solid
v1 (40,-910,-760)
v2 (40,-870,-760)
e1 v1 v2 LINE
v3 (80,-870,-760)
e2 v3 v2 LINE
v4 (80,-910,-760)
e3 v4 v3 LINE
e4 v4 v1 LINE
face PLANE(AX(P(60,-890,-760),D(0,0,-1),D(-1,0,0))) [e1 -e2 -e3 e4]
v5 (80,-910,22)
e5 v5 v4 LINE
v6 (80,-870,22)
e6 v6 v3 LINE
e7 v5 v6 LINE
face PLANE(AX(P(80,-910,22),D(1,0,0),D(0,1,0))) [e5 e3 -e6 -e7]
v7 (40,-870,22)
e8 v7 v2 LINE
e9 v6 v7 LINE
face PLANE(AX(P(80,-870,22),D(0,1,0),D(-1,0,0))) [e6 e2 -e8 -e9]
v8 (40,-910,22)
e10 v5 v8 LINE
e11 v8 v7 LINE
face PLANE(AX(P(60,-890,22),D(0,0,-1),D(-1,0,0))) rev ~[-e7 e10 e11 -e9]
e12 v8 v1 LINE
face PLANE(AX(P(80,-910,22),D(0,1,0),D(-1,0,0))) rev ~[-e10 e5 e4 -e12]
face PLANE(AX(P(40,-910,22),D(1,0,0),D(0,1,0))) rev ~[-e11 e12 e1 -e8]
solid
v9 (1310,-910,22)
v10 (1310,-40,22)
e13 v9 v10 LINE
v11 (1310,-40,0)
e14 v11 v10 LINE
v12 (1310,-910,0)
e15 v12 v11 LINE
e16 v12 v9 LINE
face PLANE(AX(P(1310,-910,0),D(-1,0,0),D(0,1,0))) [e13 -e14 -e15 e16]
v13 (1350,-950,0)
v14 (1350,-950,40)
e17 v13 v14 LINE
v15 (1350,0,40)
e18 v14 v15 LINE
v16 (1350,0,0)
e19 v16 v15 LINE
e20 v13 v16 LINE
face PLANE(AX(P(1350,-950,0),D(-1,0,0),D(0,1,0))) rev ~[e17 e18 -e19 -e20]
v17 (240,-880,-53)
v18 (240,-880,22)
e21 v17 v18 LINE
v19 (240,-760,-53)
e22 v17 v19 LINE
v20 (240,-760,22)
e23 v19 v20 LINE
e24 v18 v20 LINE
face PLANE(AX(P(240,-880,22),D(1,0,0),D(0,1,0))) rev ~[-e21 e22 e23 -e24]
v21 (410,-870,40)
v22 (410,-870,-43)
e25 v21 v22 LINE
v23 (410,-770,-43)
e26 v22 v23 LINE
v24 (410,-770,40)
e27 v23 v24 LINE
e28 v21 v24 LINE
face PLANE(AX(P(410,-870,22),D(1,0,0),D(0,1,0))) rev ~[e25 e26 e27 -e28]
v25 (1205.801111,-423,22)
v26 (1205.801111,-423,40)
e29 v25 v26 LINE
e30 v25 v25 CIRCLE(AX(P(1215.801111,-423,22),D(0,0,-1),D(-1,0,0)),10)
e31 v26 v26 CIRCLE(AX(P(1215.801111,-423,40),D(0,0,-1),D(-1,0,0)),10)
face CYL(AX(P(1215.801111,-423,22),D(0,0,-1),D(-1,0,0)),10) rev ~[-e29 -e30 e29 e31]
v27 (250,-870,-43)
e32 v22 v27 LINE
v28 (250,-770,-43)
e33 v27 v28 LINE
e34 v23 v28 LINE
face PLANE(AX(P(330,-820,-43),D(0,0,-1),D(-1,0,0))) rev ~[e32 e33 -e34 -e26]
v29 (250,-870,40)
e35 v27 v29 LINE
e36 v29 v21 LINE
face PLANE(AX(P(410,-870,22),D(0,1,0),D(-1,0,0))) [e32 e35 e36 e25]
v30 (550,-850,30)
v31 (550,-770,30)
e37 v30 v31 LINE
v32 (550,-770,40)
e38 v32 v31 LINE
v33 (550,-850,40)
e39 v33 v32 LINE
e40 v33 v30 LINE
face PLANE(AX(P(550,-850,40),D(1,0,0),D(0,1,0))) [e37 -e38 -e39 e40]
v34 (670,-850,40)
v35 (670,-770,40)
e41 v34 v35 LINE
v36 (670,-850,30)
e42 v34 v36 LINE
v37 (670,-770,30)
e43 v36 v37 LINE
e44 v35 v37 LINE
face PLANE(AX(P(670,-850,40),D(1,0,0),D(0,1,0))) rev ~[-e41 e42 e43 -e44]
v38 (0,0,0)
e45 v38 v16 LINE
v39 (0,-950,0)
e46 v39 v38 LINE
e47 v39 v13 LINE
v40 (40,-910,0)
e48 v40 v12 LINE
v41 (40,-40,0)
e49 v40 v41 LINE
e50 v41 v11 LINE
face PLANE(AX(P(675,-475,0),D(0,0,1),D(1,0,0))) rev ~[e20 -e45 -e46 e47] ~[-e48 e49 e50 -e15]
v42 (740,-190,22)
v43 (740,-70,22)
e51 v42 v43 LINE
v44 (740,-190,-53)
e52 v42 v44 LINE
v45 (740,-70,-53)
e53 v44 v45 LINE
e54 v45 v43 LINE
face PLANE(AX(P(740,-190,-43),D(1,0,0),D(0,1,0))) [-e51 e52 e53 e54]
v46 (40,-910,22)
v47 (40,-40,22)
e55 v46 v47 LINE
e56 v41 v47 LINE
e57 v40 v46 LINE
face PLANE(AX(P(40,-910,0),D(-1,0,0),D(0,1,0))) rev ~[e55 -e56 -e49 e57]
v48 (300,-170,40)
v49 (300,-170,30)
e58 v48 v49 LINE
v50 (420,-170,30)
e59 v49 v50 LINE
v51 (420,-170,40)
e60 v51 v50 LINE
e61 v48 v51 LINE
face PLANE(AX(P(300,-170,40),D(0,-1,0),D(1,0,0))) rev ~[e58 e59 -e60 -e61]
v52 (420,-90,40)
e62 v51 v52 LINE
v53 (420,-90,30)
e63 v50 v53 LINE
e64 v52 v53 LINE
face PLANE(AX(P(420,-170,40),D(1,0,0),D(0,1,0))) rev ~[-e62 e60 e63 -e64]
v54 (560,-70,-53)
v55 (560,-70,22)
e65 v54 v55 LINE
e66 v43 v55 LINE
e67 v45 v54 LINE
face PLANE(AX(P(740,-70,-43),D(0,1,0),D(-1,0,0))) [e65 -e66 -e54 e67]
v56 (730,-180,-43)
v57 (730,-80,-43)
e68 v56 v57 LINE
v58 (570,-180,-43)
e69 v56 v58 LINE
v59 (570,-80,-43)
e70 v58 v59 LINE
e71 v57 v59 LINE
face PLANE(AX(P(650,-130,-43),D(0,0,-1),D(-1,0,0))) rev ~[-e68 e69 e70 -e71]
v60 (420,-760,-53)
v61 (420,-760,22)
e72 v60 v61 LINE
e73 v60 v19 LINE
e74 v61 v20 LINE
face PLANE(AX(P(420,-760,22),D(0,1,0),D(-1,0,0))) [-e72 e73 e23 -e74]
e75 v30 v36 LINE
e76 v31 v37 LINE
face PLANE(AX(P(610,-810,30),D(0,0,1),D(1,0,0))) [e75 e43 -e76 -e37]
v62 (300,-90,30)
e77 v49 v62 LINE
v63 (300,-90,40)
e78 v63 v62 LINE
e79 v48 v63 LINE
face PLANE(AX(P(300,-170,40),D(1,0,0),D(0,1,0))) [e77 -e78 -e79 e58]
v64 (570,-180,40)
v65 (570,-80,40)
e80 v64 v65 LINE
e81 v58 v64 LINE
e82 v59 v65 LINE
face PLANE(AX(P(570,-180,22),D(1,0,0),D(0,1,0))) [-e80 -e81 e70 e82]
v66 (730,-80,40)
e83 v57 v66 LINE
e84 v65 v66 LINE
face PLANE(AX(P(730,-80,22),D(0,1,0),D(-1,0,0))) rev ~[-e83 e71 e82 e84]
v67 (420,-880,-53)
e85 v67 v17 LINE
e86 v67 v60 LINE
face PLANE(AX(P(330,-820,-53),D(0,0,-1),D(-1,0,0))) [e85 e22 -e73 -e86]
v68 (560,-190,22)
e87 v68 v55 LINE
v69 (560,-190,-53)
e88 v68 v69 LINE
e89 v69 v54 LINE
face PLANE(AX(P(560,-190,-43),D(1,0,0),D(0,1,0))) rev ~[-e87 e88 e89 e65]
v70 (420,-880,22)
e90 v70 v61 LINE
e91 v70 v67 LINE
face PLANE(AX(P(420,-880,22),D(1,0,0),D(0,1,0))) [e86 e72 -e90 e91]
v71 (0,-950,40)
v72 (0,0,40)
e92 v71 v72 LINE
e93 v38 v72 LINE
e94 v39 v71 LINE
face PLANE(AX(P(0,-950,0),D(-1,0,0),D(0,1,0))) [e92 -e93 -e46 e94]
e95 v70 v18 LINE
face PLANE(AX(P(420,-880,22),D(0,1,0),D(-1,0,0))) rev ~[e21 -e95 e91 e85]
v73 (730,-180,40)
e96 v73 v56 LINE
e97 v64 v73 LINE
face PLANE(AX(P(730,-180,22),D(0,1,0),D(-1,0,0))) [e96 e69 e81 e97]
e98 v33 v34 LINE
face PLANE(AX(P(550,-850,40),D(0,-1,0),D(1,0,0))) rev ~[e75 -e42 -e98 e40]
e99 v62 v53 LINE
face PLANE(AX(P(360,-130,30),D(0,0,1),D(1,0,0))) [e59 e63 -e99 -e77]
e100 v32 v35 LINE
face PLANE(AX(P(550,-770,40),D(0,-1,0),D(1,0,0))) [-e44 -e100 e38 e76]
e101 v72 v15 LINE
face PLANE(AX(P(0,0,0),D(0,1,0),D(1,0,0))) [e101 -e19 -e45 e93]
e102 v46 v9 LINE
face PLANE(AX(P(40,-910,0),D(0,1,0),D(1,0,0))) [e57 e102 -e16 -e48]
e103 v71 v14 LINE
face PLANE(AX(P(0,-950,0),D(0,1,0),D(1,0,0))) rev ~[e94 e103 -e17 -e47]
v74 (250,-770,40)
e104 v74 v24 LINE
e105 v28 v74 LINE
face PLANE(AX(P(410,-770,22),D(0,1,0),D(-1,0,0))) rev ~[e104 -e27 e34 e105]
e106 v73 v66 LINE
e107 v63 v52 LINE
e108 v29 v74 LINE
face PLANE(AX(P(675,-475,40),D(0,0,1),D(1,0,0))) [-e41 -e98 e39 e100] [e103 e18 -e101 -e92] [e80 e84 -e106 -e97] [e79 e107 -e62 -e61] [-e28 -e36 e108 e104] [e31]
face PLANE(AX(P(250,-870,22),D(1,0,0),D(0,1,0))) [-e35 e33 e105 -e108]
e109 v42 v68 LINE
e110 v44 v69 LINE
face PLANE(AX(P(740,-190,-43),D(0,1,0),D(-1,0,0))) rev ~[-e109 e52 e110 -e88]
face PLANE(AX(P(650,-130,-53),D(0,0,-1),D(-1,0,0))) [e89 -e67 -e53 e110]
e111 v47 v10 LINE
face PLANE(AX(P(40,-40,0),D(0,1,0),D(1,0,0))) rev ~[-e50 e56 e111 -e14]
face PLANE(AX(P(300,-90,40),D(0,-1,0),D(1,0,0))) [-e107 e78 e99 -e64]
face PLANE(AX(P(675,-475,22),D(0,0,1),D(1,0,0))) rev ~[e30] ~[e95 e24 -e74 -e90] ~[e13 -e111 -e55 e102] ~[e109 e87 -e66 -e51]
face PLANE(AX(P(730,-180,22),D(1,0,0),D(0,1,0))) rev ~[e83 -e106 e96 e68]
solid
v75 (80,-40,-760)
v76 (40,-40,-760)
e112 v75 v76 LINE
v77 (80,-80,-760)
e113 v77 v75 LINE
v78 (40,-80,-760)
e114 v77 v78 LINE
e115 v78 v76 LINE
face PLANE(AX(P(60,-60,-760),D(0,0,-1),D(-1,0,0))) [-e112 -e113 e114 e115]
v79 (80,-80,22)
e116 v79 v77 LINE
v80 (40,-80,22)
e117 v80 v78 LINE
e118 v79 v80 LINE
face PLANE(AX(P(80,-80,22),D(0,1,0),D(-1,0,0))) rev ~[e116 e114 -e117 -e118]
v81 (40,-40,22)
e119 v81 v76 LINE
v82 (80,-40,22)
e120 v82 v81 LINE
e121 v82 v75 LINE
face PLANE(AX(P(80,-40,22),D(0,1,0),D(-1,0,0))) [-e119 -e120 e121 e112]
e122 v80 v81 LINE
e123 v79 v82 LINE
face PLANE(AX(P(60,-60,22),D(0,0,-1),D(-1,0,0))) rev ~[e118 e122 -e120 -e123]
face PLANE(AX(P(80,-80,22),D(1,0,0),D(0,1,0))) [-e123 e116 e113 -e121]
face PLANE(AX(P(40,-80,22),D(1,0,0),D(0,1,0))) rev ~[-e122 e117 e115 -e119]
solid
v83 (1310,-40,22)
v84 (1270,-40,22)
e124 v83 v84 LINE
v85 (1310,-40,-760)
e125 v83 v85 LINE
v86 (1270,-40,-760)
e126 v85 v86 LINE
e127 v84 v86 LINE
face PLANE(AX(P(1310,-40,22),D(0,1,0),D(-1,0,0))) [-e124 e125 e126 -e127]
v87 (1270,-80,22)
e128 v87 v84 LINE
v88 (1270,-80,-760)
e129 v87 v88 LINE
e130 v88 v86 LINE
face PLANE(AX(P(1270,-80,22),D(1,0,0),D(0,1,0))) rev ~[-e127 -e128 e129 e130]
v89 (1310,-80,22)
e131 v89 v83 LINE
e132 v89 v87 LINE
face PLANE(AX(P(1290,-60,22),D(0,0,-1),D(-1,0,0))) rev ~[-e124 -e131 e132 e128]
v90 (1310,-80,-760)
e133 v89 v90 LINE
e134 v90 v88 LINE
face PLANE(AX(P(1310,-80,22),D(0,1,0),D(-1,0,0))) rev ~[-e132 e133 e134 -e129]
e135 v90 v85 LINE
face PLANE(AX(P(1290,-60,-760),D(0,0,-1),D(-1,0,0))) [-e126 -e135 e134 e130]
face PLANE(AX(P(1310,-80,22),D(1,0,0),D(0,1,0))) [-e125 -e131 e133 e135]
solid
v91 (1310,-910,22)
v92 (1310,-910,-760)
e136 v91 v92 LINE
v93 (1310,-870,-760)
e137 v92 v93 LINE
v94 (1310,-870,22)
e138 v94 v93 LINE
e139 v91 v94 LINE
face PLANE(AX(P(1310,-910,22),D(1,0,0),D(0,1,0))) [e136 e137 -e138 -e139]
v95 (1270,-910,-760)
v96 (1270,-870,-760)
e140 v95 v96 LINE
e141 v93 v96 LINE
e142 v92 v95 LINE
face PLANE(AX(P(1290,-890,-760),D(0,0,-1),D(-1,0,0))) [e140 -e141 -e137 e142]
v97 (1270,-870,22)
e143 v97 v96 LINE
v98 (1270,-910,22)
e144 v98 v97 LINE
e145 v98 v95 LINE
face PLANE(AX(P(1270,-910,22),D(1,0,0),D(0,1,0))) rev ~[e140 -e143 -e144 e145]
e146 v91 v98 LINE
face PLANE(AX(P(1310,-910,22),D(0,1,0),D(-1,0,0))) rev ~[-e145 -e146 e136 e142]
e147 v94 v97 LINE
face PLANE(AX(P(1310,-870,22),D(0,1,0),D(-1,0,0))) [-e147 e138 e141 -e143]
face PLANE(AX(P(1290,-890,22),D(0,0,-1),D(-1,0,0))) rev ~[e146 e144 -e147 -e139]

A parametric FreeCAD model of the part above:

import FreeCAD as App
import Part
import Sketcher
from FreeCAD import Vector
Q = App.Units.Quantity


def add_polygon(sketch, points):
    """Adds a closed chain of lines whose ends are joined by coincident constraints."""
    first, n = sketch.GeometryCount, len(points)
    for a, b in zip(points, points[1:] + points[:1]):
        sketch.addGeometry(Part.LineSegment(App.Vector(*a, 0), App.Vector(*b, 0)), False)
    for i in range(n):
        sketch.addConstraint(Sketcher.Constraint("Coincident", first + i, 2, first + (i + 1) % n, 1))

doc = App.newDocument("Part")
body = doc.addObject("PartDesign::Body", "Body")

# Sketch on XY plane
sketch1 = doc.addObject("Sketcher::SketchObject", "Sketch")
body.addObject(sketch1)
sketch1.AttachmentSupport = (doc.XY_Plane, [""])
sketch1.MapMode = "FlatFace"
add_polygon(sketch1, [(0, 0), (0, -950), (1350, -950), (1350, 0)])  # lines 0-3
add_polygon(sketch1, [(1310, -910), (40, -910), (40, -40), (1310, -40)])  # lines 4-7
sketch1.addConstraint([
    Sketcher.Constraint("Vertical", 0),
    Sketcher.Constraint("Horizontal", 1),
    Sketcher.Constraint("Vertical", 2),
    Sketcher.Constraint("Horizontal", 3),
    Sketcher.Constraint("Horizontal", 4),
    Sketcher.Constraint("Vertical", 5),
    Sketcher.Constraint("Horizontal", 6),
    Sketcher.Constraint("Vertical", 7),
    Sketcher.Constraint("Coincident", 3, 2, -1, 1),
    Sketcher.Constraint("DistanceX", 1, 1, 1, 2, Q("1350 mm")),
    Sketcher.Constraint("DistanceX", 4, 2, 4, 1, Q("1270 mm")),
    Sketcher.Constraint("DistanceY", 0, 2, 0, 1, Q("950 mm")),
    Sketcher.Constraint("DistanceY", 5, 1, 5, 2, Q("870 mm")),
    Sketcher.Constraint("DistanceX", -1, 1, 4, 2, Q("40 mm")),
    Sketcher.Constraint("DistanceY", 4, 2, -1, 1, Q("910 mm")),
])
pad1 = doc.addObject("PartDesign::Pad", "Pad")
body.addObject(pad1)
pad1.Profile = sketch1
pad1.Length = 40
body2 = doc.addObject("PartDesign::Body", "Body001")

# Sketch on XY plane
sketch2 = doc.addObject("Sketcher::SketchObject", "Sketch001")
body2.addObject(sketch2)
sketch2.AttachmentSupport = (doc.getObject("XY_Plane001"), [""])
sketch2.MapMode = "FlatFace"
add_polygon(sketch2, [(1310, -40), (1310, -80), (1270, -80), (1270, -40)])  # lines 0-3
sketch2.addConstraint([
    Sketcher.Constraint("Vertical", 0),
    Sketcher.Constraint("Horizontal", 1),
    Sketcher.Constraint("Vertical", 2),
    Sketcher.Constraint("Horizontal", 3),
    Sketcher.Constraint("Equal", 3, 0),
    Sketcher.Constraint("DistanceX", 1, 2, 1, 1, Q("40 mm")),
    Sketcher.Constraint("DistanceX", -1, 1, 0, 2, Q("1310 mm")),
    Sketcher.Constraint("DistanceY", 0, 2, -1, 1, Q("80 mm")),
])
pad2 = doc.addObject("PartDesign::Pad", "Pad001")
body2.addObject(pad2)
pad2.Profile = sketch2
pad2.Type = "TwoLengths"
pad2.Length = 760
pad2.Length2 = 22
pad2.Reversed = True
body3 = doc.addObject("PartDesign::Body", "Body002")

# Sketch on XY plane
sketch3 = doc.addObject("Sketcher::SketchObject", "Sketch002")
body3.addObject(sketch3)
sketch3.AttachmentSupport = (doc.getObject("XY_Plane002"), [""])
sketch3.MapMode = "FlatFace"
add_polygon(sketch3, [(80, -40), (80, -80), (40, -80), (40, -40)])  # lines 0-3
sketch3.addConstraint([
    Sketcher.Constraint("Vertical", 0),
    Sketcher.Constraint("Horizontal", 1),
    Sketcher.Constraint("Vertical", 2),
    Sketcher.Constraint("Horizontal", 3),
    Sketcher.Constraint("Equal", 3, 0),
    Sketcher.Constraint("DistanceX", 1, 2, 1, 1, Q("40 mm")),
    Sketcher.Constraint("DistanceX", -1, 1, 0, 2, Q("80 mm")),
    Sketcher.Constraint("DistanceY", 0, 2, -1, 1, Q("80 mm")),
])
pad3 = doc.addObject("PartDesign::Pad", "Pad002")
body3.addObject(pad3)
pad3.Profile = sketch3
pad3.Type = "TwoLengths"
pad3.Length = 760
pad3.Length2 = 22
pad3.Reversed = True
body4 = doc.addObject("PartDesign::Body", "Body003")

# Sketch on XY plane
sketch4 = doc.addObject("Sketcher::SketchObject", "Sketch003")
body4.addObject(sketch4)
sketch4.AttachmentSupport = (doc.getObject("XY_Plane003"), [""])
sketch4.MapMode = "FlatFace"
add_polygon(sketch4, [(80, -870), (80, -910), (40, -910), (40, -870)])  # lines 0-3
sketch4.addConstraint([
    Sketcher.Constraint("Vertical", 0),
    Sketcher.Constraint("Horizontal", 1),
    Sketcher.Constraint("Vertical", 2),
    Sketcher.Constraint("Horizontal", 3),
    Sketcher.Constraint("Equal", 3, 0),
    Sketcher.Constraint("DistanceX", 1, 2, 1, 1, Q("40 mm")),
    Sketcher.Constraint("DistanceX", -1, 1, 0, 2, Q("80 mm")),
    Sketcher.Constraint("DistanceY", 0, 2, -1, 1, Q("910 mm")),
])
pad4 = doc.addObject("PartDesign::Pad", "Pad003")
body4.addObject(pad4)
pad4.Profile = sketch4
pad4.Type = "TwoLengths"
pad4.Length = 760
pad4.Length2 = 22
pad4.Reversed = True
body5 = doc.addObject("PartDesign::Body", "Body004")

# Sketch on XY plane
sketch5 = doc.addObject("Sketcher::SketchObject", "Sketch004")
body5.addObject(sketch5)
sketch5.AttachmentSupport = (doc.getObject("XY_Plane004"), [""])
sketch5.MapMode = "FlatFace"
add_polygon(sketch5, [(1310, -870), (1310, -910), (1270, -910), (1270, -870)])  # lines 0-3
sketch5.addConstraint([
    Sketcher.Constraint("Vertical", 0),
    Sketcher.Constraint("Horizontal", 1),
    Sketcher.Constraint("Vertical", 2),
    Sketcher.Constraint("Horizontal", 3),
    Sketcher.Constraint("Equal", 3, 0),
    Sketcher.Constraint("DistanceX", 1, 2, 1, 1, Q("40 mm")),
    Sketcher.Constraint("DistanceX", -1, 1, 0, 2, Q("1310 mm")),
    Sketcher.Constraint("DistanceY", 0, 2, -1, 1, Q("910 mm")),
])
pad5 = doc.addObject("PartDesign::Pad", "Pad004")
body5.addObject(pad5)
pad5.Profile = sketch5
pad5.Type = "TwoLengths"
pad5.Length = 760
pad5.Length2 = 22
pad5.Reversed = True
body6 = doc.addObject("PartDesign::Body", "Body005")

# Sketch on XY plane
sketch6 = doc.addObject("Sketcher::SketchObject", "Sketch005")
body6.addObject(sketch6)
sketch6.AttachmentSupport = (doc.getObject("XY_Plane005"), [""])
sketch6.MapMode = "FlatFace"
sketch6.AttachmentOffset = App.Placement(Vector(0, 0, 22), App.Rotation())
add_polygon(sketch6, [(40, -40), (40, -910), (1310, -910), (1310, -40)])  # lines 0-3
sketch6.addConstraint([
    Sketcher.Constraint("Vertical", 0),
    Sketcher.Constraint("Horizontal", 1),
    Sketcher.Constraint("Vertical", 2),
    Sketcher.Constraint("Horizontal", 3),
    Sketcher.Constraint("DistanceX", 1, 1, 1, 2, Q("1270 mm")),
    Sketcher.Constraint("DistanceY", 0, 2, 0, 1, Q("870 mm")),
    Sketcher.Constraint("DistanceX", -1, 1, 0, 2, Q("40 mm")),
    Sketcher.Constraint("DistanceY", 0, 2, -1, 1, Q("910 mm")),
])
pad6 = doc.addObject("PartDesign::Pad", "Pad005")
body6.addObject(pad6)
pad6.Profile = sketch6
pad6.Length = 18

# Sketch on XY plane
sketch7 = doc.addObject("Sketcher::SketchObject", "Sketch006")
body6.addObject(sketch7)
sketch7.AttachmentSupport = (doc.getObject("XY_Plane005"), [""])
sketch7.MapMode = "FlatFace"
sketch7.AttachmentOffset = App.Placement(Vector(0, 0, 40), App.Rotation())
add_polygon(sketch7, [(250, -770), (250, -870), (410, -870), (410, -770)])  # lines 0-3
add_polygon(sketch7, [(570, -80), (570, -180), (730, -180), (730, -80)])  # lines 4-7
sketch7.addConstraint([
    Sketcher.Constraint("Vertical", 0),
    Sketcher.Constraint("Horizontal", 1),
    Sketcher.Constraint("Vertical", 2),
    Sketcher.Constraint("Horizontal", 3),
    Sketcher.Constraint("Vertical", 4),
    Sketcher.Constraint("Horizontal", 5),
    Sketcher.Constraint("Vertical", 6),
    Sketcher.Constraint("Horizontal", 7),
    Sketcher.Constraint("Equal", 3, 5),
    Sketcher.Constraint("Equal", 2, 4),
    Sketcher.Constraint("DistanceX", 1, 1, 1, 2, Q("160 mm")),
    Sketcher.Constraint("DistanceY", 0, 2, 0, 1, Q("100 mm")),
    Sketcher.Constraint("DistanceX", -1, 1, 0, 2, Q("250 mm")),
    Sketcher.Constraint("DistanceY", 0, 2, -1, 1, Q("870 mm")),
    Sketcher.Constraint("DistanceX", -1, 1, 4, 2, Q("570 mm")),
    Sketcher.Constraint("DistanceY", 4, 2, -1, 1, Q("180 mm")),
])
pocket1 = doc.addObject("PartDesign::Pocket", "Pocket")
body6.addObject(pocket1)
pocket1.Profile = sketch7
pocket1.Type = "ThroughAll"
doc.recompute()

boolean = doc.addObject("PartDesign::Boolean", "Boolean")
body.addObject(boolean)
boolean.Type = "Fuse"
boolean.addObjects([body6])

# Sketch on XY plane
sketch8 = doc.addObject("Sketcher::SketchObject", "Sketch007")
body.addObject(sketch8)
sketch8.AttachmentSupport = (doc.XY_Plane, [""])
sketch8.MapMode = "FlatFace"
sketch8.AttachmentOffset = App.Placement(Vector(0, 0, 22), App.Rotation())
add_polygon(sketch8, [(420, -760), (420, -880), (240, -880), (240, -760)])  # lines 0-3
add_polygon(sketch8, [(250, -870), (410, -870), (410, -770), (250, -770)])  # lines 4-7
add_polygon(sketch8, [(740, -70), (740, -190), (560, -190), (560, -70)])  # lines 8-11
add_polygon(sketch8, [(570, -180), (730, -180), (730, -80), (570, -80)])  # lines 12-15
sketch8.addConstraint([
    Sketcher.Constraint("Vertical", 0),
    Sketcher.Constraint("Horizontal", 1),
    Sketcher.Constraint("Vertical", 2),
    Sketcher.Constraint("Horizontal", 3),
    Sketcher.Constraint("Horizontal", 4),
    Sketcher.Constraint("Vertical", 5),
    Sketcher.Constraint("Horizontal", 6),
    Sketcher.Constraint("Vertical", 7),
    Sketcher.Constraint("Vertical", 8),
    Sketcher.Constraint("Horizontal", 9),
    Sketcher.Constraint("Vertical", 10),
    Sketcher.Constraint("Horizontal", 11),
    Sketcher.Constraint("Horizontal", 12),
    Sketcher.Constraint("Vertical", 13),
    Sketcher.Constraint("Horizontal", 14),
    Sketcher.Constraint("Vertical", 15),
    Sketcher.Constraint("Equal", 3, 9),
    Sketcher.Constraint("Equal", 6, 12),
    Sketcher.Constraint("Equal", 2, 8),
    Sketcher.Constraint("Equal", 7, 13),
    Sketcher.Constraint("DistanceX", 1, 2, 1, 1, Q("180 mm")),
    Sketcher.Constraint("DistanceX", 4, 1, 4, 2, Q("160 mm")),
    Sketcher.Constraint("DistanceY", 0, 2, 0, 1, Q("120 mm")),
    Sketcher.Constraint("DistanceY", 5, 1, 5, 2, Q("100 mm")),
    Sketcher.Constraint("DistanceX", -1, 1, 0, 2, Q("420 mm")),
    Sketcher.Constraint("DistanceY", 0, 2, -1, 1, Q("880 mm")),
    Sketcher.Constraint("DistanceX", -1, 1, 4, 2, Q("410 mm")),
    Sketcher.Constraint("DistanceY", 4, 2, -1, 1, Q("870 mm")),
    Sketcher.Constraint("DistanceX", -1, 1, 8, 2, Q("740 mm")),
    Sketcher.Constraint("DistanceY", 8, 2, -1, 1, Q("190 mm")),
    Sketcher.Constraint("DistanceX", -1, 1, 12, 2, Q("730 mm")),
    Sketcher.Constraint("DistanceY", 12, 2, -1, 1, Q("180 mm")),
])
pad7 = doc.addObject("PartDesign::Pad", "Pad006")
body.addObject(pad7)
pad7.Profile = sketch8
pad7.Length = 65
pad7.Reversed = True

# Sketch on XY plane
sketch9 = doc.addObject("Sketcher::SketchObject", "Sketch008")
body.addObject(sketch9)
sketch9.AttachmentSupport = (doc.XY_Plane, [""])
sketch9.MapMode = "FlatFace"
sketch9.AttachmentOffset = App.Placement(Vector(0, 0, -43), App.Rotation())
add_polygon(sketch9, [(740, -70), (740, -190), (560, -190), (560, -70)])  # lines 0-3
add_polygon(sketch9, [(420, -760), (420, -880), (240, -880), (240, -760)])  # lines 4-7
sketch9.addConstraint([
    Sketcher.Constraint("Vertical", 0),
    Sketcher.Constraint("Horizontal", 1),
    Sketcher.Constraint("Vertical", 2),
    Sketcher.Constraint("Horizontal", 3),
    Sketcher.Constraint("Vertical", 4),
    Sketcher.Constraint("Horizontal", 5),
    Sketcher.Constraint("Vertical", 6),
    Sketcher.Constraint("Horizontal", 7),
    Sketcher.Constraint("Equal", 3, 5),
    Sketcher.Constraint("Equal", 2, 4),
    Sketcher.Constraint("DistanceX", 1, 2, 1, 1, Q("180 mm")),
    Sketcher.Constraint("DistanceY", 0, 2, 0, 1, Q("120 mm")),
    Sketcher.Constraint("DistanceX", -1, 1, 0, 2, Q("740 mm")),
    Sketcher.Constraint("DistanceY", 0, 2, -1, 1, Q("190 mm")),
    Sketcher.Constraint("DistanceX", -1, 1, 4, 2, Q("420 mm")),
    Sketcher.Constraint("DistanceY", 4, 2, -1, 1, Q("880 mm")),
])
pad8 = doc.addObject("PartDesign::Pad", "Pad007")
body.addObject(pad8)
pad8.Profile = sketch9
pad8.Length = 10
pad8.Reversed = True

# Sketch on XY plane
sketch10 = doc.addObject("Sketcher::SketchObject", "Sketch009")
body.addObject(sketch10)
sketch10.AttachmentSupport = (doc.XY_Plane, [""])
sketch10.MapMode = "FlatFace"
sketch10.AttachmentOffset = App.Placement(Vector(0, 0, 40), App.Rotation())
add_polygon(sketch10, [(300, -90), (300, -170), (420, -170), (420, -90)])  # lines 0-3
add_polygon(sketch10, [(550, -770), (550, -850), (670, -850), (670, -770)])  # lines 4-7
sketch10.addConstraint([
    Sketcher.Constraint("Vertical", 0),
    Sketcher.Constraint("Horizontal", 1),
    Sketcher.Constraint("Vertical", 2),
    Sketcher.Constraint("Horizontal", 3),
    Sketcher.Constraint("Vertical", 4),
    Sketcher.Constraint("Horizontal", 5),
    Sketcher.Constraint("Vertical", 6),
    Sketcher.Constraint("Horizontal", 7),
    Sketcher.Constraint("Equal", 3, 5),
    Sketcher.Constraint("Equal", 2, 4),
    Sketcher.Constraint("DistanceX", 1, 1, 1, 2, Q("120 mm")),
    Sketcher.Constraint("DistanceY", 0, 2, 0, 1, Q("80 mm")),
    Sketcher.Constraint("DistanceX", -1, 1, 0, 2, Q("300 mm")),
    Sketcher.Constraint("DistanceY", 0, 2, -1, 1, Q("170 mm")),
    Sketcher.Constraint("DistanceX", -1, 1, 4, 2, Q("550 mm")),
    Sketcher.Constraint("DistanceY", 4, 2, -1, 1, Q("850 mm")),
])
pocket2 = doc.addObject("PartDesign::Pocket", "Pocket001")
body.addObject(pocket2)
pocket2.Profile = sketch10
pocket2.Length = 10

# Sketch on XY plane
sketch11 = doc.addObject("Sketcher::SketchObject", "Sketch010")
body.addObject(sketch11)
sketch11.AttachmentSupport = (doc.XY_Plane, [""])
sketch11.MapMode = "FlatFace"
sketch11.AttachmentOffset = App.Placement(Vector(0, 0, 22), App.Rotation())
sketch11.addGeometry(Part.Circle(Vector(1216, -423, 0), Vector(0, 0, 1), 10), False)
sketch11.addConstraint([
    Sketcher.Constraint("Diameter", 0, Q("20 mm")),
    Sketcher.Constraint("DistanceY", 0, 3, -1, 1, Q("423 mm")),
    Sketcher.Constraint("DistanceX", -1, 1, 0, 3, Q("1215.801111 mm")),
])
pocket3 = doc.addObject("PartDesign::Pocket", "Pocket002")
body.addObject(pocket3)
pocket3.Profile = sketch11
pocket3.Type = "ThroughAll"
pocket3.Reversed = True

doc.recompute()
